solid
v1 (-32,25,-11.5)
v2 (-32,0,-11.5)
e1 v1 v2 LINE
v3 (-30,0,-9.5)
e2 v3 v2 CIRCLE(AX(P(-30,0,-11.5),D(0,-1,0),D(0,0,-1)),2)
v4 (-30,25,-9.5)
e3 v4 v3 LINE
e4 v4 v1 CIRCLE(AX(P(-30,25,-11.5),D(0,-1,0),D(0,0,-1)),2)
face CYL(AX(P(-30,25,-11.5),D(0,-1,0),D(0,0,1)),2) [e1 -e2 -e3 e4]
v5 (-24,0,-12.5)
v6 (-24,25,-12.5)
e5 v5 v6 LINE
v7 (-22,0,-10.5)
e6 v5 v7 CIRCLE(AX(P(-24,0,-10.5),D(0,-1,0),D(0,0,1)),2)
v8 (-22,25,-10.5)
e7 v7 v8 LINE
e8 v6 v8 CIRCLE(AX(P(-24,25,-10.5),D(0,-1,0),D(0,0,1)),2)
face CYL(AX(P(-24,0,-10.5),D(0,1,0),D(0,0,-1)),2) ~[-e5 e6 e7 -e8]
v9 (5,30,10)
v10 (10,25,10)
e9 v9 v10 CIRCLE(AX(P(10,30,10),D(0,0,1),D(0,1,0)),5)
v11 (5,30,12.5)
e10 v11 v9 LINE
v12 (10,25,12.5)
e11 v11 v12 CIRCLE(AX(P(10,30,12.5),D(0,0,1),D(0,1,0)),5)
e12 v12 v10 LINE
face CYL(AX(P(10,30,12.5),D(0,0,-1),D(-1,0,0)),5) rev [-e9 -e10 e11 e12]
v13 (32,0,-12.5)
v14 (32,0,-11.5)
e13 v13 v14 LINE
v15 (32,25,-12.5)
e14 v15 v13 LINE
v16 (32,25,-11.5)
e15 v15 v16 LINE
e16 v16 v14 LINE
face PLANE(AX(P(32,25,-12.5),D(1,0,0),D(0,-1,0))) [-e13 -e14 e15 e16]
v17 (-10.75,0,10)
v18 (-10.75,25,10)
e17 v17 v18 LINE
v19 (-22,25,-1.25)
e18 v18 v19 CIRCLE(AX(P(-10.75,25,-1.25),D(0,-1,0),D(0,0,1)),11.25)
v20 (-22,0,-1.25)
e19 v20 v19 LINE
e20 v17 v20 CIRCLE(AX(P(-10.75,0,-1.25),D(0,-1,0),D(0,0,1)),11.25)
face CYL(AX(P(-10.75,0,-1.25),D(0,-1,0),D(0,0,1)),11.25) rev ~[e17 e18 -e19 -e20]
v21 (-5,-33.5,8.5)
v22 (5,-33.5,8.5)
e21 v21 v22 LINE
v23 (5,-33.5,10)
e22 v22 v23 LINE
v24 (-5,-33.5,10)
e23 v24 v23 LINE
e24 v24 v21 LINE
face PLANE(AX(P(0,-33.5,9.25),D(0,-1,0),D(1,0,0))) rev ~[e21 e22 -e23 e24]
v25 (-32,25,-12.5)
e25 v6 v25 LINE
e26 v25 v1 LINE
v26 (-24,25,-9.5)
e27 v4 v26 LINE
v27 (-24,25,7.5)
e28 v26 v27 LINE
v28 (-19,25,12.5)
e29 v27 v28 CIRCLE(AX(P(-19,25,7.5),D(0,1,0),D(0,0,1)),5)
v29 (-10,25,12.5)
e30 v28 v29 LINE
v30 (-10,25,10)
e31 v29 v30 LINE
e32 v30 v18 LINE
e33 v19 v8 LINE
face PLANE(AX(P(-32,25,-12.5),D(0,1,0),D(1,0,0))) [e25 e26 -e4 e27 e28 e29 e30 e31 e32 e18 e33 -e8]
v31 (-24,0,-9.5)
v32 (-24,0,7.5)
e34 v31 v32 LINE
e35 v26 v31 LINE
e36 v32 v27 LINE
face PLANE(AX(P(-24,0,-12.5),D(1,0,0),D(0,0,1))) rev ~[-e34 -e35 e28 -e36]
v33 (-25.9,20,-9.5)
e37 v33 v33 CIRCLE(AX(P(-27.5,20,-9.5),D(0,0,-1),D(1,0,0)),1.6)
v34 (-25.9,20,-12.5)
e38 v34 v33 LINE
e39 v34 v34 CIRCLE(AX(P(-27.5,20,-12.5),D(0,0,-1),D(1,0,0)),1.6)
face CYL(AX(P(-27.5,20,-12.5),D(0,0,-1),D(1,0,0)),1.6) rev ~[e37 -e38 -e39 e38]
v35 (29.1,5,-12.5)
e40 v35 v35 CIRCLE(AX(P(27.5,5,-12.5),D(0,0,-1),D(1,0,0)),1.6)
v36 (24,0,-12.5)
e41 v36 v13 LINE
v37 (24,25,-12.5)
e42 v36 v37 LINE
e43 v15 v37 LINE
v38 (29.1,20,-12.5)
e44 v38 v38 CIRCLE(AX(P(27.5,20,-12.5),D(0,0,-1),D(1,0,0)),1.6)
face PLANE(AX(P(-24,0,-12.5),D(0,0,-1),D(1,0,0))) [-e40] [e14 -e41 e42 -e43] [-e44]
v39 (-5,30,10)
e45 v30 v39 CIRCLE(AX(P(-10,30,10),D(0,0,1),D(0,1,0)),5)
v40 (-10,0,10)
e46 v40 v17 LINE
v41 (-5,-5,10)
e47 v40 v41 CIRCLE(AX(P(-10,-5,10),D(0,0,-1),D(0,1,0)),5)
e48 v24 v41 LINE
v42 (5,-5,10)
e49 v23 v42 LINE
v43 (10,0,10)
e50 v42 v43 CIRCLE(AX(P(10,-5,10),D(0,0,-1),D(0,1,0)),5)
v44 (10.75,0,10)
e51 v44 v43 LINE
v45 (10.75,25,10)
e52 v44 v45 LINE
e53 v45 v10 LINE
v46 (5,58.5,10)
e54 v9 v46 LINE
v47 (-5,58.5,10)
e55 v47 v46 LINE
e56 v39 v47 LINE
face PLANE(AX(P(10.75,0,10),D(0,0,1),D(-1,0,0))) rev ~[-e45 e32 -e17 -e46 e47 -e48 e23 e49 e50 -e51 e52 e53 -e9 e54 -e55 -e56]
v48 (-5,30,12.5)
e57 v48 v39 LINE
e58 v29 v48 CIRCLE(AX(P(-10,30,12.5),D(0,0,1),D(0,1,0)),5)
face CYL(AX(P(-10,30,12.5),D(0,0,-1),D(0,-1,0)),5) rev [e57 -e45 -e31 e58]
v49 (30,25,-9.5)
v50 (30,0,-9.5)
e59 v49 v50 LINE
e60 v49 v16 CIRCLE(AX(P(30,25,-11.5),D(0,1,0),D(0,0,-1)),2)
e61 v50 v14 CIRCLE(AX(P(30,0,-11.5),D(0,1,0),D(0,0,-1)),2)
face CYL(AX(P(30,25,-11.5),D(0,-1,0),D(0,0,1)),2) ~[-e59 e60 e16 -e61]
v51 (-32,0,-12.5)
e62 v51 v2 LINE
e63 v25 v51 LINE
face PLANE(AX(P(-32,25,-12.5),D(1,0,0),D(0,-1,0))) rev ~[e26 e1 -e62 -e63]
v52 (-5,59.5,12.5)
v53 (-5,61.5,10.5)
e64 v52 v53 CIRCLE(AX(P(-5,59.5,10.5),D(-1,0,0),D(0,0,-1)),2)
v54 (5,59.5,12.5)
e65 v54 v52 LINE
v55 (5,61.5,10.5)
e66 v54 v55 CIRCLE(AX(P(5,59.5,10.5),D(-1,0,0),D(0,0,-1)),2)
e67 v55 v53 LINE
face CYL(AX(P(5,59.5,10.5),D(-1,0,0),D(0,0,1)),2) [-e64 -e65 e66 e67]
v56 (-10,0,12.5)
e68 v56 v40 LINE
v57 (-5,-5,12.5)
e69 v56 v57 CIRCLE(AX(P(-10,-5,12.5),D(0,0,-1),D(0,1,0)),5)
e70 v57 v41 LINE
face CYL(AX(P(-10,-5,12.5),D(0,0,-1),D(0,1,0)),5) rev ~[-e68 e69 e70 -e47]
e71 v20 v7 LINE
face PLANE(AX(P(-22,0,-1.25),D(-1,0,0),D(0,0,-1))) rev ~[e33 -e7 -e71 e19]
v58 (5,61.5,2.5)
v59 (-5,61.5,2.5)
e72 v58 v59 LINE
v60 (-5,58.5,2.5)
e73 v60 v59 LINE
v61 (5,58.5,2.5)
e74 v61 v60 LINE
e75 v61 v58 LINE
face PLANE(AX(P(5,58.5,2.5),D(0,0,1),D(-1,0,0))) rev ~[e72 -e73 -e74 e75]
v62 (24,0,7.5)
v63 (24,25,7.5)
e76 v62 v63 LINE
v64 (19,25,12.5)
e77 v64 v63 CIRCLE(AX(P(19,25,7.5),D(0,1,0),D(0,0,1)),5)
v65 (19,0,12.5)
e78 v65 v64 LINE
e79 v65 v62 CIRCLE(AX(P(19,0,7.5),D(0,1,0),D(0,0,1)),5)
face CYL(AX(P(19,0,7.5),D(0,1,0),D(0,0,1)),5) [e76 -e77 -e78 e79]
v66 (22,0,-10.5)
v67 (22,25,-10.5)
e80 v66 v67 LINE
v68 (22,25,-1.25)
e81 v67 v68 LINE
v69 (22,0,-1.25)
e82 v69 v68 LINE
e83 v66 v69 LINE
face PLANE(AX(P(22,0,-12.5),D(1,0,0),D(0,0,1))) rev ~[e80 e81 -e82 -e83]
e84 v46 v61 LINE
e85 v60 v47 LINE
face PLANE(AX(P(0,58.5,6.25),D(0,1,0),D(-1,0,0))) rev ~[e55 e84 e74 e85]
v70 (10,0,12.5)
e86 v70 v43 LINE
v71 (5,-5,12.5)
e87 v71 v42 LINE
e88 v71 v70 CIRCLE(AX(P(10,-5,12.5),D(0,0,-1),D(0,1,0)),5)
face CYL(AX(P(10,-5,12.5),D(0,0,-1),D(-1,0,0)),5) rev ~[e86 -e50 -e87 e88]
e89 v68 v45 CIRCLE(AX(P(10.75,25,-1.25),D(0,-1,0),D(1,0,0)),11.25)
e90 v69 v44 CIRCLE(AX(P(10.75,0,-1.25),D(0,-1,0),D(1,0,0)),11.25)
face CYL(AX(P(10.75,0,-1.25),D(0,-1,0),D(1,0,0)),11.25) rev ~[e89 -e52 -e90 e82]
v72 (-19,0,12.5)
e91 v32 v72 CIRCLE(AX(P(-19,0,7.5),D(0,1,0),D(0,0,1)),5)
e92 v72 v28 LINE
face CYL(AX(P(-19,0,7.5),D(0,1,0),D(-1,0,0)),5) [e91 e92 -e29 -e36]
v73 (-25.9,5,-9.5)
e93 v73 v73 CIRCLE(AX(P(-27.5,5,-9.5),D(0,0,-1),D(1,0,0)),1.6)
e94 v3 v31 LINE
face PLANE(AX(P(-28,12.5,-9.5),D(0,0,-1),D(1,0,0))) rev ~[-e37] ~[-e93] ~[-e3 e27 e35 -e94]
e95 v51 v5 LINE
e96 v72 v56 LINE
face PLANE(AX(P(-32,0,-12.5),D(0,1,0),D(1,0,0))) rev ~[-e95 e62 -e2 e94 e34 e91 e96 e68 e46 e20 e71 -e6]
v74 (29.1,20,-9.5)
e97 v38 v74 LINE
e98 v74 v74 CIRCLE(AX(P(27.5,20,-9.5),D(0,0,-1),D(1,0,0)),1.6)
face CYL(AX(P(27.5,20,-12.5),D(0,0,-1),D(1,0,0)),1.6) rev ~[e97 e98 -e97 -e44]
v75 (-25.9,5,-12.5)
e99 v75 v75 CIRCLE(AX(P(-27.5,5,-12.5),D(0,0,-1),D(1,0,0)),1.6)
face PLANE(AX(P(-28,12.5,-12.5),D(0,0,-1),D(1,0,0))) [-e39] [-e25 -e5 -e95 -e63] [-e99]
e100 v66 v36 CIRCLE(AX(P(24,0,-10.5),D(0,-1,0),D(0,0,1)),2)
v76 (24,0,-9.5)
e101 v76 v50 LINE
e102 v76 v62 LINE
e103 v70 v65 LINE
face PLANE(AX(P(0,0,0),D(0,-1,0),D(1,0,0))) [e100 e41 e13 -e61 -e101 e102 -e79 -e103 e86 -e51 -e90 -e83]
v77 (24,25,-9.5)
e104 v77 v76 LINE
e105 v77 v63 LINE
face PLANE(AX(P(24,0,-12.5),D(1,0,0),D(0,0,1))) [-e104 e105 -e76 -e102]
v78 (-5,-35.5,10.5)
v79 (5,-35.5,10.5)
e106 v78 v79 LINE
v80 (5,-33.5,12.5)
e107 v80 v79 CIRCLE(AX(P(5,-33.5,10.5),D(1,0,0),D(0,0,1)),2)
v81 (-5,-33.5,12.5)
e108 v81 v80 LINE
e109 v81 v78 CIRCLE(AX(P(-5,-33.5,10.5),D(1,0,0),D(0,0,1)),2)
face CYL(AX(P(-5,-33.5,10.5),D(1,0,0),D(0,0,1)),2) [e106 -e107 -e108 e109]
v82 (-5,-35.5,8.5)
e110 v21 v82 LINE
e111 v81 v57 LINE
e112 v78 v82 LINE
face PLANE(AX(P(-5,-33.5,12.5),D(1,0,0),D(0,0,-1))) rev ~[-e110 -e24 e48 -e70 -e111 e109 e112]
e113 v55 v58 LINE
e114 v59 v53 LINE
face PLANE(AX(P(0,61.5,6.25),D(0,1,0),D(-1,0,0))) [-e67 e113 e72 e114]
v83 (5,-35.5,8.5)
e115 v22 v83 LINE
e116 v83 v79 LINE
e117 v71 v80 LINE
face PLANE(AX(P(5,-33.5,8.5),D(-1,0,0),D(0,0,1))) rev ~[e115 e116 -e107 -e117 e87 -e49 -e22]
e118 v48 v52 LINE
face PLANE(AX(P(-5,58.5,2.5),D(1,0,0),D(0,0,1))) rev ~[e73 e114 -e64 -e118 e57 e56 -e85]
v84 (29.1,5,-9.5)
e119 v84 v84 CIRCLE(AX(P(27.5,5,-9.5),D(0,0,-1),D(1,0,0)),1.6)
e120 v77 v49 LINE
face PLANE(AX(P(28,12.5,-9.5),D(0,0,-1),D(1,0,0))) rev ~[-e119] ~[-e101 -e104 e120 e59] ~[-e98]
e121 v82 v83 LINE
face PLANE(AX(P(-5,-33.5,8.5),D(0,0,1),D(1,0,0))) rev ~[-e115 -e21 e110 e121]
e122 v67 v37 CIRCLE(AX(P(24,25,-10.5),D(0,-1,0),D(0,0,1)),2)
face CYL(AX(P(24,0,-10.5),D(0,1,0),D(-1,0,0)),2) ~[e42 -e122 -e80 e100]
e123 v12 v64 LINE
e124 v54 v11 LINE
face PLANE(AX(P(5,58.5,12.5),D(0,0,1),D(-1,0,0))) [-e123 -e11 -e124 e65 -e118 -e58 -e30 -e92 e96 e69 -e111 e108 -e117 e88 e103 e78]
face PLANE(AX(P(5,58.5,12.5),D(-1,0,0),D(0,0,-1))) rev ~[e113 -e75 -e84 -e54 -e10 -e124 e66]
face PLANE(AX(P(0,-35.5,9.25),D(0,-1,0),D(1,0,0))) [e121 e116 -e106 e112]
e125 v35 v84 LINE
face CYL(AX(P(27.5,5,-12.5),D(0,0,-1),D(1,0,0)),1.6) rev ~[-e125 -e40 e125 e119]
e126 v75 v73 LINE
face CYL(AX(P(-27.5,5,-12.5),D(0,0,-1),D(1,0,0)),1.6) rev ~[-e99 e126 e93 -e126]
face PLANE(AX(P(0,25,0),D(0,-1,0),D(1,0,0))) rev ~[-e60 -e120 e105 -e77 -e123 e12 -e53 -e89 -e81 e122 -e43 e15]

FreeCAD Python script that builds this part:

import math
import FreeCAD as App
import Part
import Sketcher

V = App.Vector


def edges_at(feature, points):
    """Names of the edges that pass closest to the given points."""
    edges = feature.Shape.Edges
    near = lambda p: min(range(len(edges)), key=lambda i: edges[i].distToShape(Part.Vertex(*p))[0])
    return sorted({f"Edge{near(p) + 1}" for p in points})


def add_polygon(sketch, points):
    """Adds a closed chain of lines whose ends are joined by coincident constraints."""
    first, n = sketch.GeometryCount, len(points)
    for a, b in zip(points, points[1:] + points[:1]):
        sketch.addGeometry(Part.LineSegment(App.Vector(*a, 0), App.Vector(*b, 0)), False)
    for i in range(n):
        sketch.addConstraint(Sketcher.Constraint("Coincident", first + i, 2, first + (i + 1) % n, 1))

doc = App.newDocument("Part")
body = doc.addObject("PartDesign::Body", "Body")

# Sketch on XZ plane
sketch1 = body.newObject("Sketcher::SketchObject", "Sketch")
sketch1.AttachmentSupport = (doc.getObject("XZ_Plane"), [""])
sketch1.MapMode = "FlatFace"
add_polygon(sketch1, [(-24, 12), (-24, -12), (24, -12), (24, 12)])  # lines 0-3
sketch1.addConstraint(Sketcher.Constraint("Vertical", 0))
sketch1.addConstraint(Sketcher.Constraint("Horizontal", 1))
sketch1.addConstraint(Sketcher.Constraint("Vertical", 2))
sketch1.addConstraint(Sketcher.Constraint("Horizontal", 3))
sketch1.addConstraint(Sketcher.Constraint("Symmetric", 0, 2, 2, 2, -1, 1))
sketch1.addConstraint(Sketcher.Constraint("DistanceX", 1, 1, 1, 2, 48.0))
sketch1.addConstraint(Sketcher.Constraint("DistanceY", 0, 2, 0, 1, 25.0))
pad1 = body.newObject("PartDesign::Pad", "Pad")
pad1.Profile = sketch1
pad1.Length = 25
pad1.Reversed = True

# Sketch on XZ plane
sketch2 = body.newObject("Sketcher::SketchObject", "Sketch001")
sketch2.AttachmentSupport = (doc.getObject("XZ_Plane"), [""])
sketch2.MapMode = "FlatFace"
sketch2.addGeometry(Part.ArcOfCircle(Part.Circle(V(11, -1, 0), V(0, 0, 1), 11), math.radians(0), math.radians(90)), False)
sketch2.addGeometry(Part.LineSegment(V(11, 10, 0), V(-11, 10, 0)), False)
sketch2.addGeometry(Part.ArcOfCircle(Part.Circle(V(-11, -1, 0), V(0, 0, 1), 11), math.radians(90), math.radians(180)), False)
sketch2.addGeometry(Part.LineSegment(V(-22, -1, 0), V(-22, -12, 0)), False)
sketch2.addGeometry(Part.LineSegment(V(-22, -12, 0), V(22, -12, 0)), False)
sketch2.addGeometry(Part.LineSegment(V(22, -12, 0), V(22, -1, 0)), False)
sketch2.addConstraint(Sketcher.Constraint("Tangent", 0, 2, 1, 1))
sketch2.addConstraint(Sketcher.Constraint("Tangent", 1, 2, 2, 1))
sketch2.addConstraint(Sketcher.Constraint("Tangent", 2, 2, 3, 1))
sketch2.addConstraint(Sketcher.Constraint("Coincident", 3, 2, 4, 1))
sketch2.addConstraint(Sketcher.Constraint("Coincident", 4, 2, 5, 1))
sketch2.addConstraint(Sketcher.Constraint("Tangent", 5, 2, 0, 1))
sketch2.addConstraint(Sketcher.Constraint("Horizontal", 1))
sketch2.addConstraint(Sketcher.Constraint("Vertical", 3))
sketch2.addConstraint(Sketcher.Constraint("Horizontal", 4))
sketch2.addConstraint(Sketcher.Constraint("Vertical", 5))
sketch2.addConstraint(Sketcher.Constraint("Equal", 0, 2))
sketch2.addConstraint(Sketcher.Constraint("DistanceX", 4, 1, 4, 2, 44.0))
sketch2.addConstraint(Sketcher.Constraint("Radius", 0, 11.25))
sketch2.addConstraint(Sketcher.Constraint("DistanceY", -1, 1, 0, 2, 10.0))
sketch2.addConstraint(Sketcher.Constraint("DistanceX", 2, 2, -1, 1, 22.0))
sketch2.addConstraint(Sketcher.Constraint("DistanceY", 3, 2, 3, 1, 11.25))
pocket1 = body.newObject("PartDesign::Pocket", "Pocket")
pocket1.Profile = sketch2
pocket1.Type = "ThroughAll"

# Sketch on XY plane
sketch3 = body.newObject("Sketcher::SketchObject", "Sketch002")
sketch3.AttachmentSupport = (doc.getObject("XY_Plane"), [""])
sketch3.MapMode = "FlatFace"
sketch3.AttachmentOffset = App.Placement(V(0, 0, 12.5), App.Rotation())
add_polygon(sketch3, [(-5, 58), (-5, 25), (5, 25), (5, 58)])  # lines 0-3
add_polygon(sketch3, [(-5, 0), (-5, -34), (5, -34), (5, 0)])  # lines 4-7
sketch3.addConstraint(Sketcher.Constraint("Vertical", 0))
sketch3.addConstraint(Sketcher.Constraint("Horizontal", 1))
sketch3.addConstraint(Sketcher.Constraint("Vertical", 2))
sketch3.addConstraint(Sketcher.Constraint("Horizontal", 3))
sketch3.addConstraint(Sketcher.Constraint("Vertical", 4))
sketch3.addConstraint(Sketcher.Constraint("Horizontal", 5))
sketch3.addConstraint(Sketcher.Constraint("Vertical", 6))
sketch3.addConstraint(Sketcher.Constraint("Horizontal", 7))
sketch3.addConstraint(Sketcher.Constraint("Symmetric", 6, 2, 7, 2, -1, 1))
sketch3.addConstraint(Sketcher.Constraint("Vertical", 3, 2, 4, 2))
sketch3.addConstraint(Sketcher.Constraint("Vertical", 2, 2, 5, 2))
sketch3.addConstraint(Sketcher.Constraint("Equal", 2, 4))
sketch3.addConstraint(Sketcher.Constraint("DistanceX", 1, 1, 1, 2, 10.0))
sketch3.addConstraint(Sketcher.Constraint("DistanceY", 0, 2, 0, 1, 33.5))
sketch3.addConstraint(Sketcher.Constraint("DistanceY", -1, 1, 0, 2, 25.0))
pad2 = body.newObject("PartDesign::Pad", "Pad001")
pad2.Profile = sketch3
pad2.Type = "UpToLast"
pad2.Reversed = True

# Sketch on XZ plane
sketch4 = body.newObject("Sketcher::SketchObject", "Sketch003")
sketch4.AttachmentSupport = (doc.getObject("XZ_Plane"), [""])
sketch4.MapMode = "FlatFace"
sketch4.AttachmentOffset = App.Placement(V(0, 0, 33.5), App.Rotation())
add_polygon(sketch4, [(-5, 8.5), (5, 8.5), (5, 12.5), (-5, 12.5)])  # lines 0-3
sketch4.addConstraint(Sketcher.Constraint("Horizontal", 0))
sketch4.addConstraint(Sketcher.Constraint("Vertical", 1))
sketch4.addConstraint(Sketcher.Constraint("Horizontal", 2))
sketch4.addConstraint(Sketcher.Constraint("Vertical", 3))
sketch4.addConstraint(Sketcher.Constraint("DistanceX", 0, 1, 0, 2, 10.0))
sketch4.addConstraint(Sketcher.Constraint("DistanceY", 1, 1, 1, 2, 4.0))
sketch4.addConstraint(Sketcher.Constraint("DistanceX", -1, 1, 0, 2, 5.0))
sketch4.addConstraint(Sketcher.Constraint("DistanceY", -1, 1, 0, 2, 8.5))
pad3 = body.newObject("PartDesign::Pad", "Pad002")
pad3.Profile = sketch4
pad3.Length = 2

# Sketch on XZ plane
sketch5 = body.newObject("Sketcher::SketchObject", "Sketch004")
sketch5.AttachmentSupport = (doc.getObject("XZ_Plane"), [""])
sketch5.MapMode = "FlatFace"
sketch5.AttachmentOffset = App.Placement(V(0, 0, -58.5), App.Rotation())
add_polygon(sketch5, [(5, 2), (-5, 2), (-5, 12), (5, 12)])  # lines 0-3
sketch5.addConstraint(Sketcher.Constraint("Horizontal", 0))
sketch5.addConstraint(Sketcher.Constraint("Vertical", 1))
sketch5.addConstraint(Sketcher.Constraint("Horizontal", 2))
sketch5.addConstraint(Sketcher.Constraint("Vertical", 3))
sketch5.addConstraint(Sketcher.Constraint("Equal", 2, 1))
sketch5.addConstraint(Sketcher.Constraint("DistanceX", 0, 2, 0, 1, 10.0))
sketch5.addConstraint(Sketcher.Constraint("DistanceX", 0, 2, -1, 1, 5.0))
sketch5.addConstraint(Sketcher.Constraint("DistanceY", -1, 1, 0, 2, 2.5))
pad4 = body.newObject("PartDesign::Pad", "Pad003")
pad4.Profile = sketch5
pad4.Length = 3
pad4.Reversed = True

# Sketch on XY plane
sketch6 = body.newObject("Sketcher::SketchObject", "Sketch005")
sketch6.AttachmentSupport = (doc.getObject("XY_Plane"), [""])
sketch6.MapMode = "FlatFace"
sketch6.AttachmentOffset = App.Placement(V(0, 0, -12.5), App.Rotation())
add_polygon(sketch6, [(-32, 0), (-32, 25), (-24, 25), (-24, 0)])  # lines 0-3
add_polygon(sketch6, [(24, 0), (24, 25), (32, 25), (32, 0)])  # lines 4-7
sketch6.addConstraint(Sketcher.Constraint("Vertical", 0))
sketch6.addConstraint(Sketcher.Constraint("Horizontal", 1))
sketch6.addConstraint(Sketcher.Constraint("Vertical", 2))
sketch6.addConstraint(Sketcher.Constraint("Horizontal", 3))
sketch6.addConstraint(Sketcher.Constraint("Vertical", 4))
sketch6.addConstraint(Sketcher.Constraint("Horizontal", 5))
sketch6.addConstraint(Sketcher.Constraint("Vertical", 6))
sketch6.addConstraint(Sketcher.Constraint("Horizontal", 7))
sketch6.addConstraint(Sketcher.Constraint("Symmetric", 3, 2, 6, 2, -1, 1))
sketch6.addConstraint(Sketcher.Constraint("Symmetric", 1, 2, 4, 2, -2))
sketch6.addConstraint(Sketcher.Constraint("PointOnObject", 2, 2, -1))
sketch6.addConstraint(Sketcher.Constraint("DistanceX", 1, 1, 1, 2, 8.0))
sketch6.addConstraint(Sketcher.Constraint("DistanceY", 0, 1, 0, 2, 25.0))
sketch6.addConstraint(Sketcher.Constraint("DistanceX", 0, 2, -1, 1, 32.0))
pad5 = body.newObject("PartDesign::Pad", "Pad004")
pad5.Profile = sketch6
pad5.Length = 3

# Sketch on XY plane
sketch7 = body.newObject("Sketcher::SketchObject", "Sketch006")
sketch7.AttachmentSupport = (doc.getObject("XY_Plane"), [""])
sketch7.MapMode = "FlatFace"
sketch7.AttachmentOffset = App.Placement(V(0, 0, -12.5), App.Rotation())
sketch7.addGeometry(Part.Circle(V(-27.5, 5, 0), V(0, 0, 1), 1.6), False)
sketch7.addGeometry(Part.Circle(V(-27.5, 20, 0), V(0, 0, 1), 1.6), False)
sketch7.addGeometry(Part.Circle(V(27.5, 20, 0), V(0, 0, 1), 1.6), False)
sketch7.addGeometry(Part.Circle(V(27.5, 5, 0), V(0, 0, 1), 1.6), False)
sketch7.addConstraint(Sketcher.Constraint("Equal", 0, 1))
sketch7.addConstraint(Sketcher.Constraint("Equal", 1, 2))
sketch7.addConstraint(Sketcher.Constraint("Equal", 2, 3))
sketch7.addConstraint(Sketcher.Constraint("Symmetric", 1, 3, 2, 3, -2))
sketch7.addConstraint(Sketcher.Constraint("Symmetric", 0, 3, 3, 3, -2))
sketch7.addConstraint(Sketcher.Constraint("Vertical", 0, 3, 1, 3))
sketch7.addConstraint(Sketcher.Constraint("Diameter", 0, 3.2))
sketch7.addConstraint(Sketcher.Constraint("DistanceY", -1, 1, 0, 3, 5.0))
sketch7.addConstraint(Sketcher.Constraint("DistanceY", -1, 1, 1, 3, 20.0))
sketch7.addConstraint(Sketcher.Constraint("DistanceX", 1, 3, 2, 3, 55.0))
pocket2 = body.newObject("PartDesign::Pocket", "Pocket001")
pocket2.Profile = sketch7
pocket2.Type = "ThroughAll"
pocket2.Reversed = True
doc.recompute()

fillet = body.newObject("PartDesign::Fillet", "Fillet")
fillet.Base = (pocket2, edges_at(pocket2, [
    (-24, 12.5, 12.5),
    (24, 12.5, 12.5),
    (-5, 25, 11.25),
    (-5, 0, 11.25),
    (5, 0, 11.25),
    (5, 25, 11.25),
]))
fillet.Radius = 5
doc.recompute()

fillet2 = body.newObject("PartDesign::Fillet", "Fillet001")
fillet2.Base = (fillet, edges_at(fillet, [
    (0, 61.5, 12.5),
    (0, -35.5, 12.5),
    (22, 12.5, -12.5),
    (-22, 12.5, -12.5),
    (-32, 12.5, -9.5),
    (32, 12.5, -9.5),
]))
fillet2.Radius = 2

doc.recompute()
